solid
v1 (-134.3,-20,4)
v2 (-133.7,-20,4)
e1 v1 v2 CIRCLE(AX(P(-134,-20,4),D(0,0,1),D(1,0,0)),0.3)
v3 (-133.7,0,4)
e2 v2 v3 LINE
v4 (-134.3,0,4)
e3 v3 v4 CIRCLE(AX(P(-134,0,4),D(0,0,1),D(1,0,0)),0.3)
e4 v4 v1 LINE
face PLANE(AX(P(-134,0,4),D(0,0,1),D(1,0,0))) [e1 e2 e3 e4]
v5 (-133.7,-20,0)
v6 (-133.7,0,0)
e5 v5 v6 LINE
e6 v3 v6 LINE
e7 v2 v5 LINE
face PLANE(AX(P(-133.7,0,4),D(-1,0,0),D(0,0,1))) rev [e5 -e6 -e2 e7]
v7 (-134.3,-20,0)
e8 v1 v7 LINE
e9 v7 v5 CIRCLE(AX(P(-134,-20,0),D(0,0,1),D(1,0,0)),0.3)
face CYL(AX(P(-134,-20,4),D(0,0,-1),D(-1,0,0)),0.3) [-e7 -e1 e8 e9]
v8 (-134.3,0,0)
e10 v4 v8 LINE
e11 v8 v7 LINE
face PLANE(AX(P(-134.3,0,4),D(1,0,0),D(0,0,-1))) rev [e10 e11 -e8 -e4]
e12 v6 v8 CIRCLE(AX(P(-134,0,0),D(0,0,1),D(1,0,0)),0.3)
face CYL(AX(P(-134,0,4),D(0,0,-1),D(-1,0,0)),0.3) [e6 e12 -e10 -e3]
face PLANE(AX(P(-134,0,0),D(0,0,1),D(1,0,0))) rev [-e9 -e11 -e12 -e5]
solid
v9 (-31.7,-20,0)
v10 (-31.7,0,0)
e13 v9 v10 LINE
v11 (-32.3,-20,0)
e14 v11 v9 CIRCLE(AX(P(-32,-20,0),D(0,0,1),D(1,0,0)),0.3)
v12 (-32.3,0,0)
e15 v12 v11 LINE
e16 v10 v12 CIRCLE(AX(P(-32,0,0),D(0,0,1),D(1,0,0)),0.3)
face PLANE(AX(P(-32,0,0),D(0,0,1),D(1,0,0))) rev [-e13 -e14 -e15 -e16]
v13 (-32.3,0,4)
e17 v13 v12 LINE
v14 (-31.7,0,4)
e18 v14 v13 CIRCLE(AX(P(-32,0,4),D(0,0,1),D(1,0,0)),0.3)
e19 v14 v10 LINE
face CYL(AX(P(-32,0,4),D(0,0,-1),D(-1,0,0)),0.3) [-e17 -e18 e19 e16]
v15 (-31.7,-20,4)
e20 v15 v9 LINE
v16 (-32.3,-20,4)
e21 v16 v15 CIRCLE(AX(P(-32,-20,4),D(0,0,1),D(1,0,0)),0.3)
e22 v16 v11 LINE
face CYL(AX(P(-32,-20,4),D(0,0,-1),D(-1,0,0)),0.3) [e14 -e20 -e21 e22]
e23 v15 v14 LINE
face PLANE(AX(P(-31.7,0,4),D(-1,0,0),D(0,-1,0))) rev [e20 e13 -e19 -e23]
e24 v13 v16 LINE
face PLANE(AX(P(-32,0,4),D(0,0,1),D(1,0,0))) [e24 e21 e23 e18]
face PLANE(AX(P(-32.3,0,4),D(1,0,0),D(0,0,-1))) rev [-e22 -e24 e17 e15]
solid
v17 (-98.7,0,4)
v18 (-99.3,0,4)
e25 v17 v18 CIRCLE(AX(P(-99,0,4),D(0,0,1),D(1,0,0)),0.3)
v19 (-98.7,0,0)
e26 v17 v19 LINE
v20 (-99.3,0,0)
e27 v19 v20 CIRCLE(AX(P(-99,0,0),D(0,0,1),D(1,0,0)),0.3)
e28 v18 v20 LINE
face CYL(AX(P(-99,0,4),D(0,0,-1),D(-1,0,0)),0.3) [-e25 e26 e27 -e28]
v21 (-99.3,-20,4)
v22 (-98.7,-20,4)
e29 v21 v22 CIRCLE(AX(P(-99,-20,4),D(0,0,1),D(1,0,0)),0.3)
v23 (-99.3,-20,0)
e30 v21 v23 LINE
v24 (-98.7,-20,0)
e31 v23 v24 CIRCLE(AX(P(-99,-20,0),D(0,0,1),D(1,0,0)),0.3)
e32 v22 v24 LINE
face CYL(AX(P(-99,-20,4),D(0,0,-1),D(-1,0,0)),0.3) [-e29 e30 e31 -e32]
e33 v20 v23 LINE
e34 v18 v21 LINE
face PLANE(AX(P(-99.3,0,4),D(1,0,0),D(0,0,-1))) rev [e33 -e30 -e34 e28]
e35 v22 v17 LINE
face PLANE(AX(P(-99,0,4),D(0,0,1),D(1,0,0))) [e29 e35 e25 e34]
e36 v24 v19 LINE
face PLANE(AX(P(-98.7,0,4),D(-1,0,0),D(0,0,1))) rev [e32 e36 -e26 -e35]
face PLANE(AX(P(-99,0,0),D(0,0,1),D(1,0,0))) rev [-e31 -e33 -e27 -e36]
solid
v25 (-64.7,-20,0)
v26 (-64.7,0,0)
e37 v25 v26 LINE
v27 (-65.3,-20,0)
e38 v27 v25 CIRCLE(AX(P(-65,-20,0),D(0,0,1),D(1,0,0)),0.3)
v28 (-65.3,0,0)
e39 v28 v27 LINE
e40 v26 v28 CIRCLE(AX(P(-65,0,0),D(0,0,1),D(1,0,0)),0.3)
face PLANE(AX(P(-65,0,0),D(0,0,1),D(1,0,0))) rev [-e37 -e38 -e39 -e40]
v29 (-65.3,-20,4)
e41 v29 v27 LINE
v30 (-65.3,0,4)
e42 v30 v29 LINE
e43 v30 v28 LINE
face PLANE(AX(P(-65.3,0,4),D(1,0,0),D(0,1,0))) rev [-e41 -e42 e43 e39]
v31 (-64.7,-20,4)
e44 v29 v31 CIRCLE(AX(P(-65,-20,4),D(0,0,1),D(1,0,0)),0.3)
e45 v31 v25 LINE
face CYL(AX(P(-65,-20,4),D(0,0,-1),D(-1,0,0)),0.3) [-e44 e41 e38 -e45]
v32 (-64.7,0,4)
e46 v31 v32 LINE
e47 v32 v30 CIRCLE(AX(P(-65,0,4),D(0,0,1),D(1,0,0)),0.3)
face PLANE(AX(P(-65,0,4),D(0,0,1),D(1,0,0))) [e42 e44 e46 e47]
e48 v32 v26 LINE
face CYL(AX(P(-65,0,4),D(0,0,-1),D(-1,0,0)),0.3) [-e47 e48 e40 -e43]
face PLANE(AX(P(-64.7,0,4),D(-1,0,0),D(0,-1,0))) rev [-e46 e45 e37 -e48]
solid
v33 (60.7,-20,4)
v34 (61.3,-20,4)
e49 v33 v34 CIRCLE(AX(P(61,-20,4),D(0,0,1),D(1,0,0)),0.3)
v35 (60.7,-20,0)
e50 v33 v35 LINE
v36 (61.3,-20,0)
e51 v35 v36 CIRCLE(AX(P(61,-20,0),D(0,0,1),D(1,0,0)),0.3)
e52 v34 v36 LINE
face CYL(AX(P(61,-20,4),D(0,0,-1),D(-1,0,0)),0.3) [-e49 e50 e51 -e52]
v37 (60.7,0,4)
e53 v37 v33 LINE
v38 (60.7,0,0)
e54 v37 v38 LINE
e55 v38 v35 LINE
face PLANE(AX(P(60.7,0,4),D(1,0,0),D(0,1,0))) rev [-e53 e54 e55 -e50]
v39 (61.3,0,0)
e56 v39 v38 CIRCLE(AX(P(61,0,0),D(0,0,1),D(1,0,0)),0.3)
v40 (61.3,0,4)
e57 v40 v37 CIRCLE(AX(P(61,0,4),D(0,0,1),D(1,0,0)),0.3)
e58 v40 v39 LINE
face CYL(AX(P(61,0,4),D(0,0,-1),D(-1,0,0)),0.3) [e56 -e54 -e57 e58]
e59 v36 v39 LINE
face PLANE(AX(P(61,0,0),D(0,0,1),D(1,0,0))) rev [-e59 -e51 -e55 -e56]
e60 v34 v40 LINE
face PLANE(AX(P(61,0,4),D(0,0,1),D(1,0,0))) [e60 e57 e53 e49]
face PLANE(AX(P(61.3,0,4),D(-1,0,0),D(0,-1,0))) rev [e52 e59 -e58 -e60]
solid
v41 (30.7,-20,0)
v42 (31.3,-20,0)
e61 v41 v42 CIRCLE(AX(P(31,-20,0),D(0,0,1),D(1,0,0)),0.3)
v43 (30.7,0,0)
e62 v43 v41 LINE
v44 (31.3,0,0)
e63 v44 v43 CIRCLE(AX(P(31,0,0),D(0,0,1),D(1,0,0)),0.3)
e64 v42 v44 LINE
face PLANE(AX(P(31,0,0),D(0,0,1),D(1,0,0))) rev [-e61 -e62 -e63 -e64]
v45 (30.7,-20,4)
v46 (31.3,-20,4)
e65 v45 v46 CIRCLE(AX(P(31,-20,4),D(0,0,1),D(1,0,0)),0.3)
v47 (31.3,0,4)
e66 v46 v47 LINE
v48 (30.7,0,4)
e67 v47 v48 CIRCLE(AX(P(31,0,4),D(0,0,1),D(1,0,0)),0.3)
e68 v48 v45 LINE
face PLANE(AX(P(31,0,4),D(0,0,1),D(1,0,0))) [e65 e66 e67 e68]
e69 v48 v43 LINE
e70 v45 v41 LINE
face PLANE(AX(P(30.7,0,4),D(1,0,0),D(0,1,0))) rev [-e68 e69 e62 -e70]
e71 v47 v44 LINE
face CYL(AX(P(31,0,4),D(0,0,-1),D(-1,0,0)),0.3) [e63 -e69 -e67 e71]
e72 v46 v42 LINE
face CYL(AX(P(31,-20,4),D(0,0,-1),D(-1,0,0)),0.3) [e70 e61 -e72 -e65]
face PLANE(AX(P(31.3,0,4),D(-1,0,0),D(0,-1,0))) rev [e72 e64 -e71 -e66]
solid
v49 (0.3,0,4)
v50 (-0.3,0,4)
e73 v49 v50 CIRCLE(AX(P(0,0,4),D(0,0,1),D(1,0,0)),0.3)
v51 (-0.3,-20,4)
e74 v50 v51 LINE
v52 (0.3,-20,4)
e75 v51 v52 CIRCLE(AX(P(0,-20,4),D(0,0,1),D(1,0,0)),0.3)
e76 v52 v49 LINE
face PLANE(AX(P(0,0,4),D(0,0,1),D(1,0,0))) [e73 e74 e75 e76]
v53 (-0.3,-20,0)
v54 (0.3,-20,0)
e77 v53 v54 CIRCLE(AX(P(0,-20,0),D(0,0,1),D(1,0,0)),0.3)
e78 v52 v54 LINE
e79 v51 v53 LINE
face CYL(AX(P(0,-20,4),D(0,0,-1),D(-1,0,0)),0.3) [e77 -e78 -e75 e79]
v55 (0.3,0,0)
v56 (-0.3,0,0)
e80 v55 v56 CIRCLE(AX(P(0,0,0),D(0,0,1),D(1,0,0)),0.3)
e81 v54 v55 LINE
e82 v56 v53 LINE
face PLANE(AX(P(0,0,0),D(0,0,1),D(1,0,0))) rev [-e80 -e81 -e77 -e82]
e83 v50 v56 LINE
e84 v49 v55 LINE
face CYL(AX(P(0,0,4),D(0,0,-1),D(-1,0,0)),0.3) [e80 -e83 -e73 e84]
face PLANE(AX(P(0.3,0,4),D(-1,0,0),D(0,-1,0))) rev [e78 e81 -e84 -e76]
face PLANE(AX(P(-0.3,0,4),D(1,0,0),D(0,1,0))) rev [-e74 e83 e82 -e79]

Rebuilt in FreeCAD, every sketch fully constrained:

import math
import FreeCAD as App
import Part
import Sketcher

V = App.Vector

doc = App.newDocument("Part")
body = doc.addObject("PartDesign::Body", "Body")

# Sketch on XY plane
sketch1 = body.newObject("Sketcher::SketchObject", "Sketch")
sketch1.AttachmentSupport = (doc.getObject("XY_Plane"), [""])
sketch1.MapMode = "FlatFace"
sketch1.addGeometry([
    Part.LineSegment(V(0.3, -20, 0), V(0.3, 0, 0)),
    Part.ArcOfCircle(Part.Circle(V(0, 0, 0), V(0, 0, 1), 0.3), math.radians(0), math.radians(180)),
    Part.LineSegment(V(-0.3, 0, 0), V(-0.3, -20, 0)),
    Part.ArcOfCircle(Part.Circle(V(0, -20, 0), V(0, 0, 1), 0.3), math.radians(180), math.radians(360)),
], False)
sketch1.addConstraint([
    Sketcher.Constraint("Tangent", 0, 2, 1, 1),
    Sketcher.Constraint("Tangent", 1, 2, 2, 1),
    Sketcher.Constraint("Tangent", 2, 2, 3, 1),
    Sketcher.Constraint("Tangent", 3, 2, 0, 1),
    Sketcher.Constraint("Vertical", 0),
    Sketcher.Constraint("Vertical", 2),
    Sketcher.Constraint("Coincident", 1, 3, -1, 1),
    Sketcher.Constraint("Radius", 1, 0.3),
    Sketcher.Constraint("DistanceY", 0, 1, 0, 2, 20.0),
])
pad1 = body.newObject("PartDesign::Pad", "Pad")
pad1.Profile = sketch1
pad1.Length = 4
body2 = doc.addObject("PartDesign::Body", "Body001")

# Sketch on XY plane
sketch2 = body2.newObject("Sketcher::SketchObject", "Sketch001")
sketch2.AttachmentSupport = (doc.getObject("XY_Plane001"), [""])
sketch2.MapMode = "FlatFace"
sketch2.addGeometry([
    Part.LineSegment(V(61.3, -20, 0), V(61.3, 0, 0)),
    Part.ArcOfCircle(Part.Circle(V(61, 0, 0), V(0, 0, 1), 0.3), math.radians(0), math.radians(180)),
    Part.LineSegment(V(60.7, 0, 0), V(60.7, -20, 0)),
    Part.ArcOfCircle(Part.Circle(V(61, -20, 0), V(0, 0, 1), 0.3), math.radians(180), math.radians(360)),
], False)
sketch2.addConstraint([
    Sketcher.Constraint("Tangent", 0, 2, 1, 1),
    Sketcher.Constraint("Tangent", 1, 2, 2, 1),
    Sketcher.Constraint("Tangent", 2, 2, 3, 1),
    Sketcher.Constraint("Tangent", 3, 2, 0, 1),
    Sketcher.Constraint("Vertical", 0),
    Sketcher.Constraint("Vertical", 2),
    Sketcher.Constraint("PointOnObject", 1, 3, -1),
    Sketcher.Constraint("Radius", 1, 0.3),
    Sketcher.Constraint("DistanceY", 0, 1, 0, 2, 20.0),
    Sketcher.Constraint("DistanceX", -1, 1, 1, 3, 61.0),
])
pad2 = body2.newObject("PartDesign::Pad", "Pad001")
pad2.Profile = sketch2
pad2.Length = 4
body3 = doc.addObject("PartDesign::Body", "Body002")

# Sketch on XY plane
sketch3 = body3.newObject("Sketcher::SketchObject", "Sketch002")
sketch3.AttachmentSupport = (doc.getObject("XY_Plane002"), [""])
sketch3.MapMode = "FlatFace"
sketch3.addGeometry([
    Part.LineSegment(V(31.3, -20, 0), V(31.3, 0, 0)),
    Part.ArcOfCircle(Part.Circle(V(31, 0, 0), V(0, 0, 1), 0.3), math.radians(0), math.radians(180)),
    Part.LineSegment(V(30.7, 0, 0), V(30.7, -20, 0)),
    Part.ArcOfCircle(Part.Circle(V(31, -20, 0), V(0, 0, 1), 0.3), math.radians(180), math.radians(360)),
], False)
sketch3.addConstraint([
    Sketcher.Constraint("Tangent", 0, 2, 1, 1),
    Sketcher.Constraint("Tangent", 1, 2, 2, 1),
    Sketcher.Constraint("Tangent", 2, 2, 3, 1),
    Sketcher.Constraint("Tangent", 3, 2, 0, 1),
    Sketcher.Constraint("Vertical", 0),
    Sketcher.Constraint("Vertical", 2),
    Sketcher.Constraint("PointOnObject", 1, 3, -1),
    Sketcher.Constraint("Radius", 1, 0.3),
    Sketcher.Constraint("DistanceY", 0, 1, 0, 2, 20.0),
    Sketcher.Constraint("DistanceX", -1, 1, 1, 3, 31.0),
])
pad3 = body3.newObject("PartDesign::Pad", "Pad002")
pad3.Profile = sketch3
pad3.Length = 4
body4 = doc.addObject("PartDesign::Body", "Body003")

# Sketch on XY plane
sketch4 = body4.newObject("Sketcher::SketchObject", "Sketch003")
sketch4.AttachmentSupport = (doc.getObject("XY_Plane003"), [""])
sketch4.MapMode = "FlatFace"
sketch4.addGeometry([
    Part.LineSegment(V(-31.7, -20, 0), V(-31.7, 0, 0)),
    Part.ArcOfCircle(Part.Circle(V(-32, 0, 0), V(0, 0, 1), 0.3), math.radians(0), math.radians(180)),
    Part.LineSegment(V(-32.3, 0, 0), V(-32.3, -20, 0)),
    Part.ArcOfCircle(Part.Circle(V(-32, -20, 0), V(0, 0, 1), 0.3), math.radians(180), math.radians(360)),
], False)
sketch4.addConstraint([
    Sketcher.Constraint("Tangent", 0, 2, 1, 1),
    Sketcher.Constraint("Tangent", 1, 2, 2, 1),
    Sketcher.Constraint("Tangent", 2, 2, 3, 1),
    Sketcher.Constraint("Tangent", 3, 2, 0, 1),
    Sketcher.Constraint("Vertical", 0),
    Sketcher.Constraint("Vertical", 2),
    Sketcher.Constraint("PointOnObject", 1, 3, -1),
    Sketcher.Constraint("Radius", 1, 0.3),
    Sketcher.Constraint("DistanceY", 0, 1, 0, 2, 20.0),
    Sketcher.Constraint("DistanceX", 1, 3, -1, 1, 32.0),
])
pad4 = body4.newObject("PartDesign::Pad", "Pad003")
pad4.Profile = sketch4
pad4.Length = 4
body5 = doc.addObject("PartDesign::Body", "Body004")

# Sketch on XY plane
sketch5 = body5.newObject("Sketcher::SketchObject", "Sketch004")
sketch5.AttachmentSupport = (doc.getObject("XY_Plane004"), [""])
sketch5.MapMode = "FlatFace"
sketch5.addGeometry([
    Part.LineSegment(V(-64.7, -20, 0), V(-64.7, 0, 0)),
    Part.ArcOfCircle(Part.Circle(V(-65, 0, 0), V(0, 0, 1), 0.3), math.radians(0), math.radians(180)),
    Part.LineSegment(V(-65.3, 0, 0), V(-65.3, -20, 0)),
    Part.ArcOfCircle(Part.Circle(V(-65, -20, 0), V(0, 0, 1), 0.3), math.radians(180), math.radians(360)),
], False)
sketch5.addConstraint([
    Sketcher.Constraint("Tangent", 0, 2, 1, 1),
    Sketcher.Constraint("Tangent", 1, 2, 2, 1),
    Sketcher.Constraint("Tangent", 2, 2, 3, 1),
    Sketcher.Constraint("Tangent", 3, 2, 0, 1),
    Sketcher.Constraint("Vertical", 0),
    Sketcher.Constraint("Vertical", 2),
    Sketcher.Constraint("PointOnObject", 1, 3, -1),
    Sketcher.Constraint("Radius", 1, 0.3),
    Sketcher.Constraint("DistanceY", 0, 1, 0, 2, 20.0),
    Sketcher.Constraint("DistanceX", 1, 3, -1, 1, 65.0),
])
pad5 = body5.newObject("PartDesign::Pad", "Pad004")
pad5.Profile = sketch5
pad5.Length = 4
body6 = doc.addObject("PartDesign::Body", "Body005")

# Sketch on XY plane
sketch6 = body6.newObject("Sketcher::SketchObject", "Sketch005")
sketch6.AttachmentSupport = (doc.getObject("XY_Plane005"), [""])
sketch6.MapMode = "FlatFace"
sketch6.addGeometry([
    Part.LineSegment(V(-98.7, -20, 0), V(-98.7, 0, 0)),
    Part.ArcOfCircle(Part.Circle(V(-99, 0, 0), V(0, 0, 1), 0.3), math.radians(0), math.radians(180)),
    Part.LineSegment(V(-99.3, 0, 0), V(-99.3, -20, 0)),
    Part.ArcOfCircle(Part.Circle(V(-99, -20, 0), V(0, 0, 1), 0.3), math.radians(180), math.radians(360)),
], False)
sketch6.addConstraint([
    Sketcher.Constraint("Tangent", 0, 2, 1, 1),
    Sketcher.Constraint("Tangent", 1, 2, 2, 1),
    Sketcher.Constraint("Tangent", 2, 2, 3, 1),
    Sketcher.Constraint("Tangent", 3, 2, 0, 1),
    Sketcher.Constraint("Vertical", 0),
    Sketcher.Constraint("Vertical", 2),
    Sketcher.Constraint("PointOnObject", 1, 3, -1),
    Sketcher.Constraint("Radius", 1, 0.3),
    Sketcher.Constraint("DistanceY", 0, 1, 0, 2, 20.0),
    Sketcher.Constraint("DistanceX", 1, 3, -1, 1, 99.0),
])
pad6 = body6.newObject("PartDesign::Pad", "Pad005")
pad6.Profile = sketch6
pad6.Length = 4
body7 = doc.addObject("PartDesign::Body", "Body006")

# Sketch on XY plane
sketch7 = body7.newObject("Sketcher::SketchObject", "Sketch006")
sketch7.AttachmentSupport = (doc.getObject("XY_Plane006"), [""])
sketch7.MapMode = "FlatFace"
sketch7.addGeometry([
    Part.LineSegment(V(-133.7, -20, 0), V(-133.7, 0, 0)),
    Part.ArcOfCircle(Part.Circle(V(-134, 0, 0), V(0, 0, 1), 0.3), math.radians(0), math.radians(180)),
    Part.LineSegment(V(-134.3, 0, 0), V(-134.3, -20, 0)),
    Part.ArcOfCircle(Part.Circle(V(-134, -20, 0), V(0, 0, 1), 0.3), math.radians(180), math.radians(360)),
], False)
sketch7.addConstraint([
    Sketcher.Constraint("Tangent", 0, 2, 1, 1),
    Sketcher.Constraint("Tangent", 1, 2, 2, 1),
    Sketcher.Constraint("Tangent", 2, 2, 3, 1),
    Sketcher.Constraint("Tangent", 3, 2, 0, 1),
    Sketcher.Constraint("Vertical", 0),
    Sketcher.Constraint("Vertical", 2),
    Sketcher.Constraint("PointOnObject", 1, 3, -1),
    Sketcher.Constraint("Radius", 1, 0.3),
    Sketcher.Constraint("DistanceY", 0, 1, 0, 2, 20.0),
    Sketcher.Constraint("DistanceX", 1, 3, -1, 1, 134.0),
])
pad7 = body7.newObject("PartDesign::Pad", "Pad006")
pad7.Profile = sketch7
pad7.Length = 4

doc.recompute()
